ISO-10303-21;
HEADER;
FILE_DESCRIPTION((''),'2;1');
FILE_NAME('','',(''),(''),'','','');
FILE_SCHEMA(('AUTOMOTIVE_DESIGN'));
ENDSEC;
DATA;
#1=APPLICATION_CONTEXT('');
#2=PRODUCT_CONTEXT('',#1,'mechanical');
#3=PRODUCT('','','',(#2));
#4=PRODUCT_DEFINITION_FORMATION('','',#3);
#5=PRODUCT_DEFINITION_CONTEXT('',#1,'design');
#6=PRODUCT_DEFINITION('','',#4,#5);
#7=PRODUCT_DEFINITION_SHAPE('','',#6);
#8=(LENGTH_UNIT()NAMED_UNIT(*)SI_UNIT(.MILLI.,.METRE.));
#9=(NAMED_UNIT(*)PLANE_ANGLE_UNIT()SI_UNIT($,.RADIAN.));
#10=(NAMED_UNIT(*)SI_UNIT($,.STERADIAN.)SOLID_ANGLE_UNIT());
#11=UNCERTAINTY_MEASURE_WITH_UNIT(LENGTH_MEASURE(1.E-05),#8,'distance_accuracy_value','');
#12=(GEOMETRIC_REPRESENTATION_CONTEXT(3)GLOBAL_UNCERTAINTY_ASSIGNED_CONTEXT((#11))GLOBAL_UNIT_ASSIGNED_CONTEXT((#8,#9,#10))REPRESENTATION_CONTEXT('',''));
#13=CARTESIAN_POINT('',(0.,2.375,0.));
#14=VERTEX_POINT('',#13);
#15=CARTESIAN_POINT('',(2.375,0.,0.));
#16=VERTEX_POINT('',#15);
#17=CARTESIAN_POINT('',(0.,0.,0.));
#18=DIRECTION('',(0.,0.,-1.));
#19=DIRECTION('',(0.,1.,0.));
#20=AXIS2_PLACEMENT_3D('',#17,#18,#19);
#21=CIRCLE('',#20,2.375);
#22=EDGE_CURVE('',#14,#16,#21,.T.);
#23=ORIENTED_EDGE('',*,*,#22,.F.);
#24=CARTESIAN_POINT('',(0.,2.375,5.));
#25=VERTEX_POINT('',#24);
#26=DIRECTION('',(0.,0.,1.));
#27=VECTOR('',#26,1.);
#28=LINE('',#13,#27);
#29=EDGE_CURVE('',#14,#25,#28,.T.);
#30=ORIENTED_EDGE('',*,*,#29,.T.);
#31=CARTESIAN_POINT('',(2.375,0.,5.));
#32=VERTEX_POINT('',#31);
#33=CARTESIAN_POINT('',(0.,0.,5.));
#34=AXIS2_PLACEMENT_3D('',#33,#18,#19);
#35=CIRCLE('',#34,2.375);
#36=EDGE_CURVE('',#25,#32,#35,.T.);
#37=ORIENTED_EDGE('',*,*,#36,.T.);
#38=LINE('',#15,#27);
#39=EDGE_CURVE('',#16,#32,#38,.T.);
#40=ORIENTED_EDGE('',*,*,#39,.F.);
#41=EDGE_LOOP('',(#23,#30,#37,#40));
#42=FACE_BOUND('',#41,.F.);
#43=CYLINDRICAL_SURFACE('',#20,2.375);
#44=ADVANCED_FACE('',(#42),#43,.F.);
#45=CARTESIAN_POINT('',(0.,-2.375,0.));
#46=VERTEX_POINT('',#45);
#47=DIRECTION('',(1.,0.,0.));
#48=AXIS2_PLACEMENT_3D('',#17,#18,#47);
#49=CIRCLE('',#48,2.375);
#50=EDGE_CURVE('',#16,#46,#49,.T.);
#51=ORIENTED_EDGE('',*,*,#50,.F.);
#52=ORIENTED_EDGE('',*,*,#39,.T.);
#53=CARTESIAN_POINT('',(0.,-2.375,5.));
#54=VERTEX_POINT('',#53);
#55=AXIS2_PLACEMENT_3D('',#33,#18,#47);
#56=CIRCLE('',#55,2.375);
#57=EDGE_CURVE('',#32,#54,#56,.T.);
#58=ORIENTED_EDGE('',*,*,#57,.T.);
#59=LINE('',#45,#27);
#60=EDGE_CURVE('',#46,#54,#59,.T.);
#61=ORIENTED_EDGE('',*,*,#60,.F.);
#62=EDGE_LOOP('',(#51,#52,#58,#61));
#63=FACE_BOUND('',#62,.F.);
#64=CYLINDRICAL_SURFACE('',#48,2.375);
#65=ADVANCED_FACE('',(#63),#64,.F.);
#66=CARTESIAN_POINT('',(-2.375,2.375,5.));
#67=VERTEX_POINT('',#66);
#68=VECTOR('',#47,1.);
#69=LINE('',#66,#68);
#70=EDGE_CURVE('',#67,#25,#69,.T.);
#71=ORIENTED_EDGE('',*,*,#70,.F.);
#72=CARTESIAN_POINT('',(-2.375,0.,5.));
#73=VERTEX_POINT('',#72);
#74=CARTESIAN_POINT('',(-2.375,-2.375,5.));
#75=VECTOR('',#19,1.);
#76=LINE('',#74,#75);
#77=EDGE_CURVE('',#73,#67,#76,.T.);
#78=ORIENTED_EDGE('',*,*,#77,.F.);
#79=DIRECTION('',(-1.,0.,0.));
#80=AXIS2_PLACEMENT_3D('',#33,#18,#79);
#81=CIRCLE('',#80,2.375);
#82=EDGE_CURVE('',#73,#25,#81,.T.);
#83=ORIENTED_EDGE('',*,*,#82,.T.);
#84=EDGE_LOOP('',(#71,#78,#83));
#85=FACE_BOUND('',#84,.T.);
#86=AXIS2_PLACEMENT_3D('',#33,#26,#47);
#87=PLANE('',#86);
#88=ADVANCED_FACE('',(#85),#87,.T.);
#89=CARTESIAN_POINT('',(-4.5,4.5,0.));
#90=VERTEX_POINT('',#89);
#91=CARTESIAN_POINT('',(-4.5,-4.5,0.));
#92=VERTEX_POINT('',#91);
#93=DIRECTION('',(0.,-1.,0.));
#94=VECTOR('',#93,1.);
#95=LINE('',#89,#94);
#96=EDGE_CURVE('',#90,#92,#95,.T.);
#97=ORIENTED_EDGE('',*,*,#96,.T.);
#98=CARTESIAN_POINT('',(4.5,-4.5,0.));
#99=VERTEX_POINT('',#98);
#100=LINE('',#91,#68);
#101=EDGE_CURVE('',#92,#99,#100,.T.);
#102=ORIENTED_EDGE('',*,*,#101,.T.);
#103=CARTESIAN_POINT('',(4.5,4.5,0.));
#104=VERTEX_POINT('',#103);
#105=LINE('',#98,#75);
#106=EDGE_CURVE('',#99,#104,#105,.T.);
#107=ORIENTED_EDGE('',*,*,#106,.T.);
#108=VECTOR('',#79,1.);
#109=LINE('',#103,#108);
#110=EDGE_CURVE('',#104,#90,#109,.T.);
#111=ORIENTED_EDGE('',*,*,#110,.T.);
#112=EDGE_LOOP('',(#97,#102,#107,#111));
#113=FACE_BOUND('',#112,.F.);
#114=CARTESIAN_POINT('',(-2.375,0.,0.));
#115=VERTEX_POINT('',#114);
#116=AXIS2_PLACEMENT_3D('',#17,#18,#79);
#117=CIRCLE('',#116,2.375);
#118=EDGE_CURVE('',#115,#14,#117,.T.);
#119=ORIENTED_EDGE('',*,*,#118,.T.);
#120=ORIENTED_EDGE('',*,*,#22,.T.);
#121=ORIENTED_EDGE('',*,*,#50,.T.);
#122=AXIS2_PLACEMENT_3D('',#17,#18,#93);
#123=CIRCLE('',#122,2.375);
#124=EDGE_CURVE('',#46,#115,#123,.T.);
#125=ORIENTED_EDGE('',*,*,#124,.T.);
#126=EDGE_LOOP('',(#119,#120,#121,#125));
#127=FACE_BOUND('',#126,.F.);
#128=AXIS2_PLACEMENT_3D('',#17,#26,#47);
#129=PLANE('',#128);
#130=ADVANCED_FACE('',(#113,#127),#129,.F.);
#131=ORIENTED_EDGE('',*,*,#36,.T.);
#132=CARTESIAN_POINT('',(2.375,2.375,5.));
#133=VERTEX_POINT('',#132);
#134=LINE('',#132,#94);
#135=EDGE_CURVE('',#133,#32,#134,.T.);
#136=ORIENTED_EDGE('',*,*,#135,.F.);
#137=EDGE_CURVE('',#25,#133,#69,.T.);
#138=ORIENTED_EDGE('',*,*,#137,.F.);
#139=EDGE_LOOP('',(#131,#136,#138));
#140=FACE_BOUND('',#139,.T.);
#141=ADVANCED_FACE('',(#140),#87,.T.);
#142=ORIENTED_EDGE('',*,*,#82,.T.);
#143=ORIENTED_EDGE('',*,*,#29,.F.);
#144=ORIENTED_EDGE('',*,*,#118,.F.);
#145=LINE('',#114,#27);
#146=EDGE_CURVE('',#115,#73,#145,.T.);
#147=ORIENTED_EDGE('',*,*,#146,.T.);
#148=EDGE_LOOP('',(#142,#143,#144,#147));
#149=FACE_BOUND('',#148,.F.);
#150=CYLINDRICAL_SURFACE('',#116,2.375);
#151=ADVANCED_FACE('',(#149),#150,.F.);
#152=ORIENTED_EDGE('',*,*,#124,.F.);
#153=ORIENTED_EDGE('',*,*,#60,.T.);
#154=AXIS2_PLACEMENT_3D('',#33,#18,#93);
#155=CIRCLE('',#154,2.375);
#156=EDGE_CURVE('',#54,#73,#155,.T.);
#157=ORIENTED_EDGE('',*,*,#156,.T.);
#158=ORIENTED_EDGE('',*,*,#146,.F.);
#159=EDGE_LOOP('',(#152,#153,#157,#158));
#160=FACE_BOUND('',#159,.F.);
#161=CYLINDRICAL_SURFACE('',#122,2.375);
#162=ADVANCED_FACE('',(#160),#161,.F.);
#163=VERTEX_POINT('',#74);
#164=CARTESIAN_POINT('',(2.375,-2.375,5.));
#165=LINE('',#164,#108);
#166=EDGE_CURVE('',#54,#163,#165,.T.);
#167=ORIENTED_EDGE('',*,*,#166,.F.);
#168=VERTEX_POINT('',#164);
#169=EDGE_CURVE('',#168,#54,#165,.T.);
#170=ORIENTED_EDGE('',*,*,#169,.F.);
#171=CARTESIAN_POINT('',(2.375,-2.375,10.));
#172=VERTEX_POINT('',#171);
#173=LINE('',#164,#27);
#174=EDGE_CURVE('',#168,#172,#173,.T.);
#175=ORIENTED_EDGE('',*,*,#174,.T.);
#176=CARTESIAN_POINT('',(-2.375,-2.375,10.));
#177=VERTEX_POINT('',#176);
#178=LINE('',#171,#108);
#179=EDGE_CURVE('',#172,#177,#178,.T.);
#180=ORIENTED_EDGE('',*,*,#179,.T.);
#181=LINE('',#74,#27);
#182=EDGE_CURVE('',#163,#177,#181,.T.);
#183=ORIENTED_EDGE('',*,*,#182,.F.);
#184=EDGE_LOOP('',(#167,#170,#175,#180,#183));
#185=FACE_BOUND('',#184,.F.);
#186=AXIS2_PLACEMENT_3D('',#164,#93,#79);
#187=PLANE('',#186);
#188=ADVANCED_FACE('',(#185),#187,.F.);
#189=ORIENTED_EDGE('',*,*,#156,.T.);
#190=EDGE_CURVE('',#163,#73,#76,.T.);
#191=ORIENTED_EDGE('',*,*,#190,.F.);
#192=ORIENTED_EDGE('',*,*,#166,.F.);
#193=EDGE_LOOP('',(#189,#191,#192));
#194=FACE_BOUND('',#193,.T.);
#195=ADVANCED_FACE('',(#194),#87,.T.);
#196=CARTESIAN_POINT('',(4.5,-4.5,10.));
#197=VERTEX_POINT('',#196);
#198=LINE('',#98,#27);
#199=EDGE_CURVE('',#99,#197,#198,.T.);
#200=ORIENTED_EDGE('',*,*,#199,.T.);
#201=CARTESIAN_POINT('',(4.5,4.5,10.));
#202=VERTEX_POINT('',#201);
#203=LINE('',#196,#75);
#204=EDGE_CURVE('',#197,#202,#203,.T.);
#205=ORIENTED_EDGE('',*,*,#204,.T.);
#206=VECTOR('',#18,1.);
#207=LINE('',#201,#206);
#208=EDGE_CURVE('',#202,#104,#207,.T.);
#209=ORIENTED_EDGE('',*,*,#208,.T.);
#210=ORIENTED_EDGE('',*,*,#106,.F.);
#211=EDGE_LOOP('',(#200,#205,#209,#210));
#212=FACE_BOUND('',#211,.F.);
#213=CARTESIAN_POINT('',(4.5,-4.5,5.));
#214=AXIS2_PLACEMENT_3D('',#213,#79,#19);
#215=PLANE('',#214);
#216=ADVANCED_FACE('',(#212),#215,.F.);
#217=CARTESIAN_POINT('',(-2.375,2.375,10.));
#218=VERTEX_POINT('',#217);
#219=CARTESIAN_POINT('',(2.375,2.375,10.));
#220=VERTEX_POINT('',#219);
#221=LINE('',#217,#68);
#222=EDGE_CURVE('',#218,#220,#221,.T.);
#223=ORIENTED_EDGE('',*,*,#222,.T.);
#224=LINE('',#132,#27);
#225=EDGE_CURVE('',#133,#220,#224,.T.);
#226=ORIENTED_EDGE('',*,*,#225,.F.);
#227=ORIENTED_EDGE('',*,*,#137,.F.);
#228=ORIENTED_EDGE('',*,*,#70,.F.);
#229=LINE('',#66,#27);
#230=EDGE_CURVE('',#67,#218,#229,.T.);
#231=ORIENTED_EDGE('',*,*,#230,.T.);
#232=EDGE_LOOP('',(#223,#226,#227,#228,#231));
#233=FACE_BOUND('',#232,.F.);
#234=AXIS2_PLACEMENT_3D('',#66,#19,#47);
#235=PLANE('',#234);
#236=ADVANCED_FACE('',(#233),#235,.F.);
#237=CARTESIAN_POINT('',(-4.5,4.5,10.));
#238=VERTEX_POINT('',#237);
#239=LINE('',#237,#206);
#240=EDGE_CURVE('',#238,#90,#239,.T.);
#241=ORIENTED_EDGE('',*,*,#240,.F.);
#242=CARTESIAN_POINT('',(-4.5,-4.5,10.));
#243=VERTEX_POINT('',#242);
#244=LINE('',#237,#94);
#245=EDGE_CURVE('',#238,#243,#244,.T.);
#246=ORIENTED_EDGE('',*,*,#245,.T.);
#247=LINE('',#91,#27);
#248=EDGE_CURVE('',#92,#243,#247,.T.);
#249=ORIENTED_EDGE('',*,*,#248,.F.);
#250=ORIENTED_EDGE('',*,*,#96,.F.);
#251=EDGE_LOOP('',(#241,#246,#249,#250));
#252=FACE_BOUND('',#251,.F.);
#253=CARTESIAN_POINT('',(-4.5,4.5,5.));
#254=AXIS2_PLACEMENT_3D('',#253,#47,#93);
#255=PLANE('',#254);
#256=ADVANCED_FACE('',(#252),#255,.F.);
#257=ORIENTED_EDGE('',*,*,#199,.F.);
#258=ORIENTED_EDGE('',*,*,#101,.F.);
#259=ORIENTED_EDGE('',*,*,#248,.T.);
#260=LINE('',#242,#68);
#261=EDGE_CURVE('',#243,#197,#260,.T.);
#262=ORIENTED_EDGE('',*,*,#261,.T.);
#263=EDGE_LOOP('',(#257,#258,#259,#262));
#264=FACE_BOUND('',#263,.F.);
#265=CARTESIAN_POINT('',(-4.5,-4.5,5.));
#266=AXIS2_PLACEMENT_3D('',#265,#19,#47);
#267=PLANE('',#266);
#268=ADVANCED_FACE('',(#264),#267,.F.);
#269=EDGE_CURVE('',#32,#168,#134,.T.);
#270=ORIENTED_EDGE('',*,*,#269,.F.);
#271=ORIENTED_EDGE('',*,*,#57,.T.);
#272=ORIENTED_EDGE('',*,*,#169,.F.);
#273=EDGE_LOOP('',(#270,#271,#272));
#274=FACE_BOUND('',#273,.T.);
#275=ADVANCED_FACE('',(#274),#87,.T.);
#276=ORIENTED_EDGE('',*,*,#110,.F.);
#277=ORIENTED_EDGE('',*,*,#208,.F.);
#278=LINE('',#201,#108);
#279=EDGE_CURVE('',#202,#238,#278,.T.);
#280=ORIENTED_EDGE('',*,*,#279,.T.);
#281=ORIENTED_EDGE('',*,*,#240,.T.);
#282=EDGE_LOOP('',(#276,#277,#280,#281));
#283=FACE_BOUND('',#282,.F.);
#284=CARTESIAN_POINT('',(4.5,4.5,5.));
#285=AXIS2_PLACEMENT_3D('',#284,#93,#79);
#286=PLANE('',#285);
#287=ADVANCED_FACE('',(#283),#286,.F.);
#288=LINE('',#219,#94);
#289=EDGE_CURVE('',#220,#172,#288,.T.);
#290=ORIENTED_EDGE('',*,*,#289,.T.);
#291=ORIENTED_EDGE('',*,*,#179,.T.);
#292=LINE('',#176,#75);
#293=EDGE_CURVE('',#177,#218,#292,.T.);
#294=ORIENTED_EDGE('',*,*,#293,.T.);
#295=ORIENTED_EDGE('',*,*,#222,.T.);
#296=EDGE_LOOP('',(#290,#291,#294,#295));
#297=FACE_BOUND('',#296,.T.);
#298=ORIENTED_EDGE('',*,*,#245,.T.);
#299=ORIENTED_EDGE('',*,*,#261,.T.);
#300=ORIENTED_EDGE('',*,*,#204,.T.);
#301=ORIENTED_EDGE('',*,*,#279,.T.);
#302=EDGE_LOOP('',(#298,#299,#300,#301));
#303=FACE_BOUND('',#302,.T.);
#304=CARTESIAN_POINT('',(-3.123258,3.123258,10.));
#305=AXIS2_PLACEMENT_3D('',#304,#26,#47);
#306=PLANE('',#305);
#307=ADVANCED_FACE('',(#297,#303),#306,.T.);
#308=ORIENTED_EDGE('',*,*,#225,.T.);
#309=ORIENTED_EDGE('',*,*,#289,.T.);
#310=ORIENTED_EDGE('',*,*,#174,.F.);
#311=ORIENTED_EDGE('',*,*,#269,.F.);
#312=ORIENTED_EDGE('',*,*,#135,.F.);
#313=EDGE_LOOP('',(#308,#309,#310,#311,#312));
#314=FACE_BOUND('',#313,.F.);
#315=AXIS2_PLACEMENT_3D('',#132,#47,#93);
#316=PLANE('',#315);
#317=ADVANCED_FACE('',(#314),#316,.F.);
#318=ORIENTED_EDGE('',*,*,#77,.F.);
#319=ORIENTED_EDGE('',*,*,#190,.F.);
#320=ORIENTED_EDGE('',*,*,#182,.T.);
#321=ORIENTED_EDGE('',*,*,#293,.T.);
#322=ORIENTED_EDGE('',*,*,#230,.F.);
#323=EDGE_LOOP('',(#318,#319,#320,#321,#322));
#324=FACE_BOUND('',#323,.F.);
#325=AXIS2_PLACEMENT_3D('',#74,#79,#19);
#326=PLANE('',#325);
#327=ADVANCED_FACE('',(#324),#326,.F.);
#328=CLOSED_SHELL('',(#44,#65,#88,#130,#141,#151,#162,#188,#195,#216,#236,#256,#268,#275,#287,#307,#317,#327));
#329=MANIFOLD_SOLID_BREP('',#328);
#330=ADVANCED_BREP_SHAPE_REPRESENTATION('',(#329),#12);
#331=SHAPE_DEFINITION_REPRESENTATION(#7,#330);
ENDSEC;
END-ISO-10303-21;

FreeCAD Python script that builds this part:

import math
import FreeCAD as App
import Part
import Sketcher


def add_polygon(sketch, points):
    """Adds a closed chain of lines whose ends are joined by coincident constraints."""
    first, n = sketch.GeometryCount, len(points)
    for a, b in zip(points, points[1:] + points[:1]):
        sketch.addGeometry(Part.LineSegment(App.Vector(*a, 0), App.Vector(*b, 0)), False)
    for i in range(n):
        sketch.addConstraint(Sketcher.Constraint("Coincident", first + i, 2, first + (i + 1) % n, 1))

doc = App.newDocument("Part")
body = doc.addObject("PartDesign::Body", "Body")

# Sketch on XY plane
sketch1 = doc.addObject("Sketcher::SketchObject", "Sketch")
body.addObject(sketch1)
sketch1.AttachmentSupport = (doc.XY_Plane, [""])
sketch1.MapMode = "FlatFace"
add_polygon(sketch1, [(4.5, 4.5), (-4.5, 4.5), (-4.5, -4.5), (4.5, -4.5)])  # lines 0-3
sketch1.addGeometry(Part.ArcOfCircle(Part.Circle(App.Vector(0, 0, 0), App.Vector(0, 0, 1), 2.4), math.radians(-90), math.radians(0)), False)  # 4
sketch1.addGeometry(Part.ArcOfCircle(Part.Circle(App.Vector(0, 0, 0), App.Vector(0, 0, 1), 2.4), math.radians(180), math.radians(270)), False)  # 5
sketch1.addGeometry(Part.ArcOfCircle(Part.Circle(App.Vector(0, 0, 0), App.Vector(0, 0, 1), 2.4), math.radians(90), math.radians(180)), False)  # 6
sketch1.addGeometry(Part.ArcOfCircle(Part.Circle(App.Vector(0, 0, 0), App.Vector(0, 0, 1), 2.4), math.radians(0), math.radians(90)), False)  # 7
sketch1.addConstraint([
    Sketcher.Constraint("Tangent", 4, 1, 5, 2),
    Sketcher.Constraint("Tangent", 5, 1, 6, 2),
    Sketcher.Constraint("Tangent", 6, 1, 7, 2),
    Sketcher.Constraint("Tangent", 7, 1, 4, 2),
    Sketcher.Constraint("Horizontal", 0),
    Sketcher.Constraint("Vertical", 1),
    Sketcher.Constraint("Horizontal", 2),
    Sketcher.Constraint("Vertical", 3),
    Sketcher.Constraint("Coincident", 4, 3, -1, 1),
    Sketcher.Constraint("Equal", 4, 5),
    Sketcher.Constraint("Symmetric", 0, 2, 2, 2, -1, 1),
    Sketcher.Constraint("PointOnObject", 4, 1, -2),
    Sketcher.Constraint("PointOnObject", 5, 1, -1),
    Sketcher.Constraint("PointOnObject", 6, 1, -2),
    Sketcher.Constraint("PointOnObject", 7, 1, -1),
    Sketcher.Constraint("Equal", 2, 1),
    Sketcher.Constraint("DistanceX", 0, 2, 0, 1, 9.0),
    Sketcher.Constraint("Radius", 4, 2.375),
])
pad1 = doc.addObject("PartDesign::Pad", "Pad")
body.addObject(pad1)
pad1.Profile = sketch1
pad1.Length = 5

# Sketch on XY plane
sketch2 = doc.addObject("Sketcher::SketchObject", "Sketch001")
body.addObject(sketch2)
sketch2.AttachmentSupport = (doc.XY_Plane, [""])
sketch2.MapMode = "FlatFace"
sketch2.AttachmentOffset = App.Placement(App.Vector(0, 0, 5), App.Rotation())
add_polygon(sketch2, [(-4.5, 4.5), (-4.5, -4.5), (4.5, -4.5), (4.5, 4.5)])  # lines 0-3
add_polygon(sketch2, [(-2.4, 2.4), (2.4, 2.4), (2.4, -2.4), (-2.4, -2.4)])  # lines 4-7
sketch2.addConstraint([
    Sketcher.Constraint("Vertical", 0),
    Sketcher.Constraint("Horizontal", 1),
    Sketcher.Constraint("Vertical", 2),
    Sketcher.Constraint("Horizontal", 3),
    Sketcher.Constraint("Horizontal", 4),
    Sketcher.Constraint("Vertical", 5),
    Sketcher.Constraint("Horizontal", 6),
    Sketcher.Constraint("Vertical", 7),
    Sketcher.Constraint("Symmetric", 0, 2, 2, 2, -1, 1),
    Sketcher.Constraint("Symmetric", 4, 2, 6, 2, -1, 1),
    Sketcher.Constraint("Equal", 3, 0),
    Sketcher.Constraint("Equal", 6, 5),
    Sketcher.Constraint("DistanceX", 1, 1, 1, 2, 9.0),
    Sketcher.Constraint("DistanceX", 4, 1, 4, 2, 4.75),
])
pad2 = doc.addObject("PartDesign::Pad", "Pad001")
body.addObject(pad2)
pad2.Profile = sketch2
pad2.Length = 5

doc.recompute()
